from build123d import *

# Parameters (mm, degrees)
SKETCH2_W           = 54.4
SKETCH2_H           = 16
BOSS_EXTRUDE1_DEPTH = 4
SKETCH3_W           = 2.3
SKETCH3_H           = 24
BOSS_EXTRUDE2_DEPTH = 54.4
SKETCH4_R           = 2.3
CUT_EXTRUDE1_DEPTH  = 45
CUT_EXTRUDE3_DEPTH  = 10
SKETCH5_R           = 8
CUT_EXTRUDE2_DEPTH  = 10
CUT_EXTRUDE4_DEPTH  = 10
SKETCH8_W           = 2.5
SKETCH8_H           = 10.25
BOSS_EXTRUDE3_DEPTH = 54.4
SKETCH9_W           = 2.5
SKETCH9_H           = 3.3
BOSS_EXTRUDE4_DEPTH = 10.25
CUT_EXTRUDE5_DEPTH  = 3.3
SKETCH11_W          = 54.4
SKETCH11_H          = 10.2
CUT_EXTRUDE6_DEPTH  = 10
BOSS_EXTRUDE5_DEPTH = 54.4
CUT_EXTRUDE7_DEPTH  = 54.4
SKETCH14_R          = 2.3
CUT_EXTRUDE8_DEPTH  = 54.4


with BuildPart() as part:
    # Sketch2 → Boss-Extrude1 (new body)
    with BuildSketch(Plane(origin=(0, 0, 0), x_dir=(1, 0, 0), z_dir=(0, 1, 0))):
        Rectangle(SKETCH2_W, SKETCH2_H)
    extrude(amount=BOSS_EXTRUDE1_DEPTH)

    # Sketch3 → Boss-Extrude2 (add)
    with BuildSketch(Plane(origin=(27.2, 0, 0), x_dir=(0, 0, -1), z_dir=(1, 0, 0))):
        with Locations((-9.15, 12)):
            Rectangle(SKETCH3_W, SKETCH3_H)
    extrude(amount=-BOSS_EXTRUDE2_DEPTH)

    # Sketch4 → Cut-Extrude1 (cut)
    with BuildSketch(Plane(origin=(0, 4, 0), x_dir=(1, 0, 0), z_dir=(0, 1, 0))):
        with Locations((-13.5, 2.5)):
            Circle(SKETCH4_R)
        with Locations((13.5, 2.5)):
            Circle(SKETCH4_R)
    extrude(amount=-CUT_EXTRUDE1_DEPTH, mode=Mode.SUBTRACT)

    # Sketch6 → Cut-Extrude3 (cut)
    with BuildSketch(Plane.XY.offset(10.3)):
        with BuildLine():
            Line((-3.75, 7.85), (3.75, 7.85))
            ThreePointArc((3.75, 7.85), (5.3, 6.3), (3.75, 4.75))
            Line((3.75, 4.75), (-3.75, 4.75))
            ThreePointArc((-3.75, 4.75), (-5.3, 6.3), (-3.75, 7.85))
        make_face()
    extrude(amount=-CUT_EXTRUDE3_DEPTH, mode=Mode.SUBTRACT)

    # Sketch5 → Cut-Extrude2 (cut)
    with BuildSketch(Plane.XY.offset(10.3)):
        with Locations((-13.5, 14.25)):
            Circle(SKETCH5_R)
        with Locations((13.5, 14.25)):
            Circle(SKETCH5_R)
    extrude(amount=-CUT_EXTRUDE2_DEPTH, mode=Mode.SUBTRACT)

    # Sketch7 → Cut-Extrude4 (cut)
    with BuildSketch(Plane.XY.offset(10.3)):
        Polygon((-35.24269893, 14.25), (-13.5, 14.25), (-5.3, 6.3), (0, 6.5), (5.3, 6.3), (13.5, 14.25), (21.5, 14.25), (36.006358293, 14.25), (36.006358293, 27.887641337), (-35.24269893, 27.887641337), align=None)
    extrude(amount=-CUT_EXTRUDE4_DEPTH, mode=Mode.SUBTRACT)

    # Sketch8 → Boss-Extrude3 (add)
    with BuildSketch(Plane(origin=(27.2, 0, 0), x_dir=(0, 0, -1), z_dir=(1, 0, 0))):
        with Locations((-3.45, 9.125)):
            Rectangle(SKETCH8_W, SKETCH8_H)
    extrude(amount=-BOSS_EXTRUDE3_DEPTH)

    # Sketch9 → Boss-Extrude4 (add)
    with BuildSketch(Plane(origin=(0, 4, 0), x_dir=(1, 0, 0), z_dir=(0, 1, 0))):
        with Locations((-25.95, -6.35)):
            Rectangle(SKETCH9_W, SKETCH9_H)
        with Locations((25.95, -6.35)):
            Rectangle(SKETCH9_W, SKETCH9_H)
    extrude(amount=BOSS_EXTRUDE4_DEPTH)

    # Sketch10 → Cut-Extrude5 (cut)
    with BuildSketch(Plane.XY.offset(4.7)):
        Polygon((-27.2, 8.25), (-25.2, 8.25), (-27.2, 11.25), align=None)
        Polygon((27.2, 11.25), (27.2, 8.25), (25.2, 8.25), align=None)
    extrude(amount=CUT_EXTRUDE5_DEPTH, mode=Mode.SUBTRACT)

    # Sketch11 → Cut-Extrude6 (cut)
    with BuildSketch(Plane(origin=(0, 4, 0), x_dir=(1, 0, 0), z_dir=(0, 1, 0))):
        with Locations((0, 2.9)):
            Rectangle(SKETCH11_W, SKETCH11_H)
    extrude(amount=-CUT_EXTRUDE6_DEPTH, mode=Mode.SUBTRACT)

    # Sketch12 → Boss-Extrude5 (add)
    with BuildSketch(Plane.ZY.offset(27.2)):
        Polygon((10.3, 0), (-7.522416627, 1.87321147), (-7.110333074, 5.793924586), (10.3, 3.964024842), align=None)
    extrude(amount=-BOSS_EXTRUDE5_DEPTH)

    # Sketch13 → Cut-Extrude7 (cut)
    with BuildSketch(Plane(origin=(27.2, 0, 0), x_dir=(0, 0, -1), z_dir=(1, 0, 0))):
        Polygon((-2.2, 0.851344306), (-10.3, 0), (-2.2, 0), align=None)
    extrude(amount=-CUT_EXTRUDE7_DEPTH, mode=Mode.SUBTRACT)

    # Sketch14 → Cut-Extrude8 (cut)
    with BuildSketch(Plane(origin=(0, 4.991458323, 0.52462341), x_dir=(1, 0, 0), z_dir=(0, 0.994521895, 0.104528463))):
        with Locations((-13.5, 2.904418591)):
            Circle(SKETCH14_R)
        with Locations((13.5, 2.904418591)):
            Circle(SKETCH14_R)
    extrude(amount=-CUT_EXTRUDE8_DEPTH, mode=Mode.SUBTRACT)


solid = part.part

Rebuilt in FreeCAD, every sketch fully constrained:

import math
import FreeCAD as App
import Part
import Sketcher
from FreeCAD import Vector
Q = App.Units.Quantity

doc = App.newDocument("Part")
params = doc.addObject("Spreadsheet::Sheet", "Params")
for row, (alias, value) in enumerate([
    ("sketch1_height", "16 mm"),
    ("sketch1_width", "54.4 mm"),
    ("pad1_length", "4 mm"),
    ("sketch2_width", "24 mm"),
    ("sketch2_height", "2.3 mm"),
    ("pad2_length", "54.4 mm"),
    ("sketch3_diameter", "4.6 mm"),
    ("pocket1_length", "45 mm"),
    ("sketch4_radius", "1.55 mm"),
    ("sketch4_width", "7.5 mm"),
    ("pocket2_length", "10 mm"),
    ("sketch5_diameter", "16 mm"),
    ("pocket3_length", "10 mm"),
    ("pocket4_length", "10 mm"),
    ("sketch7_height", "2.5 mm"),
    ("sketch7_width", "10.25 mm"),
    ("pad3_length", "54.4 mm"),
    ("sketch8_width", "2.5 mm"),
    ("sketch8_height", "3.3 mm"),
    ("pad4_length", "10.25 mm"),
    ("sketch9_width", "2 mm"),
    ("sketch9_height", "3 mm"),
    ("pocket5_length", "3.3 mm"),
    ("sketch10_width", "54.4 mm"),
    ("sketch10_height", "10.2 mm"),
    ("pocket6_length", "10 mm"),
    ("pad5_length", "54.4 mm"),
    ("sketch12_height", "8.1 mm"),
    ("pocket7_length", "54.4 mm"),
    ("sketch13_diameter", "4.6 mm"),
    ("pocket8_length", "54.4 mm"),
], start=1):
    params.set(f"A{row}", alias)
    params.set(f"B{row}", "=" + value)
    params.setAlias(f"B{row}", alias)

body = doc.addObject("PartDesign::Body", "Body")

sketch1 = body.newObject("Sketcher::SketchObject", "Sketch")
sketch1.AttachmentSupport = (doc.getObject("XZ_Plane"), [""])
sketch1.MapMode = "FlatFace"
sketch1.addGeometry([
    Part.LineSegment(Vector(-27, -8, 0), Vector(-27, 8, 0)),
    Part.LineSegment(Vector(-27, 8, 0), Vector(27, 8, 0)),
    Part.LineSegment(Vector(27, 8, 0), Vector(27, -8, 0)),
    Part.LineSegment(Vector(27, -8, 0), Vector(-27, -8, 0)),
], False)
sketch1.addConstraint([
    Sketcher.Constraint("Coincident", 0, 2, 1, 1),
    Sketcher.Constraint("Coincident", 1, 2, 2, 1),
    Sketcher.Constraint("Coincident", 2, 2, 3, 1),
    Sketcher.Constraint("Coincident", 3, 2, 0, 1),
    Sketcher.Constraint("Vertical", 0),
    Sketcher.Constraint("Horizontal", 1),
    Sketcher.Constraint("Vertical", 2),
    Sketcher.Constraint("Horizontal", 3),
    Sketcher.Constraint("Symmetric", 0, 2, 2, 2, -1, 1),
    Sketcher.Constraint("DistanceY", 0, 1, 0, 2, 16.0),
    Sketcher.Constraint("DistanceX", 1, 1, 1, 2, 54.4),
])
sketch1.setExpression("Constraints[9]", "Params.sketch1_height")
sketch1.setExpression("Constraints[10]", "Params.sketch1_width")
pad1 = body.newObject("PartDesign::Pad", "Pad")
pad1.Profile = sketch1
pad1.setExpression("Length", "Params.pad1_length")
pad1.Reversed = True

sketch2 = body.newObject("Sketcher::SketchObject", "Sketch001")
sketch2.AttachmentSupport = (doc.getObject("YZ_Plane"), [""])
sketch2.MapMode = "FlatFace"
sketch2.AttachmentOffset = App.Placement(Vector(0, 0, 27.2), App.Rotation())
sketch2.addGeometry([
    Part.LineSegment(Vector(24, 10.3, 0), Vector(0, 10.3, 0)),
    Part.LineSegment(Vector(0, 10.3, 0), Vector(0, 8, 0)),
    Part.LineSegment(Vector(0, 8, 0), Vector(24, 8, 0)),
    Part.LineSegment(Vector(24, 8, 0), Vector(24, 10.3, 0)),
], False)
sketch2.addConstraint([
    Sketcher.Constraint("Coincident", 0, 2, 1, 1),
    Sketcher.Constraint("Coincident", 1, 2, 2, 1),
    Sketcher.Constraint("Coincident", 2, 2, 3, 1),
    Sketcher.Constraint("Coincident", 3, 2, 0, 1),
    Sketcher.Constraint("Horizontal", 0),
    Sketcher.Constraint("Vertical", 1),
    Sketcher.Constraint("Horizontal", 2),
    Sketcher.Constraint("Vertical", 3),
    Sketcher.Constraint("PointOnObject", 0, 2, -2),
    Sketcher.Constraint("DistanceX", 0, 2, 0, 1, 24.0),
    Sketcher.Constraint("DistanceY", 1, 2, 1, 1, 2.3),
    Sketcher.Constraint("DistanceY", -1, 1, 1, 2, 8.0),
])
sketch2.setExpression("Constraints[9]", "Params.sketch2_width")
sketch2.setExpression("Constraints[10]", "Params.sketch2_height")
pad2 = body.newObject("PartDesign::Pad", "Pad001")
pad2.Profile = sketch2
pad2.setExpression("Length", "Params.pad2_length")
pad2.Reversed = True

sketch3 = body.newObject("Sketcher::SketchObject", "Sketch002")
sketch3.AttachmentSupport = (doc.getObject("XZ_Plane"), [""])
sketch3.MapMode = "FlatFace"
sketch3.AttachmentOffset = App.Placement(Vector(0, 0, -4), App.Rotation())
sketch3.addGeometry([
    Part.Circle(Vector(-13.5, -2.5, 0), Vector(0, 0, 1), 2.3),
    Part.Circle(Vector(13.5, -2.5, 0), Vector(0, 0, 1), 2.3),
], False)
sketch3.addConstraint([
    Sketcher.Constraint("Equal", 0, 1),
    Sketcher.Constraint("Symmetric", 0, 3, 1, 3, -2),
    Sketcher.Constraint("Diameter", 0, 4.6),
    Sketcher.Constraint("DistanceX", 0, 3, 1, 3, 27.0),
    Sketcher.Constraint("DistanceY", 0, 3, -1, 1, 2.5),
])
sketch3.setExpression("Constraints[2]", "Params.sketch3_diameter")
pocket1 = body.newObject("PartDesign::Pocket", "Pocket")
pocket1.Profile = sketch3
pocket1.setExpression("Length", "Params.pocket1_length")
pocket1.Reversed = True

sketch4 = body.newObject("Sketcher::SketchObject", "Sketch003")
sketch4.AttachmentSupport = (doc.getObject("XY_Plane"), [""])
sketch4.MapMode = "FlatFace"
sketch4.AttachmentOffset = App.Placement(Vector(0, 0, 10.3), App.Rotation())
sketch4.addGeometry([
    Part.LineSegment(Vector(3.8, 7.8, 0), Vector(-3.8, 7.8, 0)),
    Part.ArcOfCircle(Part.Circle(Vector(-3.8, 6.3, 0), Vector(0, 0, 1), 1.6), math.radians(90), math.radians(270)),
    Part.LineSegment(Vector(-3.8, 4.8, 0), Vector(3.8, 4.8, 0)),
    Part.ArcOfCircle(Part.Circle(Vector(3.8, 6.3, 0), Vector(0, 0, 1), 1.6), math.radians(-90), math.radians(90)),
], False)
sketch4.addConstraint([
    Sketcher.Constraint("Tangent", 0, 2, 1, 1),
    Sketcher.Constraint("Tangent", 1, 2, 2, 1),
    Sketcher.Constraint("Tangent", 2, 2, 3, 1),
    Sketcher.Constraint("Tangent", 3, 2, 0, 1),
    Sketcher.Constraint("Horizontal", 0),
    Sketcher.Constraint("Horizontal", 2),
    Sketcher.Constraint("Radius", 1, 1.55),
    Sketcher.Constraint("DistanceX", 0, 2, 0, 1, 7.5),
    Sketcher.Constraint("DistanceY", -1, 1, 1, 3, 6.3),
    Sketcher.Constraint("DistanceX", 1, 3, -1, 1, 3.75),
])
sketch4.setExpression("Constraints[6]", "Params.sketch4_radius")
sketch4.setExpression("Constraints[7]", "Params.sketch4_width")
pocket2 = body.newObject("PartDesign::Pocket", "Pocket001")
pocket2.Profile = sketch4
pocket2.setExpression("Length", "Params.pocket2_length")

sketch5 = body.newObject("Sketcher::SketchObject", "Sketch004")
sketch5.AttachmentSupport = (doc.getObject("XY_Plane"), [""])
sketch5.MapMode = "FlatFace"
sketch5.AttachmentOffset = App.Placement(Vector(0, 0, 10.3), App.Rotation())
sketch5.addGeometry([
    Part.Circle(Vector(-14, 14, 0), Vector(0, 0, 1), 8),
    Part.Circle(Vector(14, 14, 0), Vector(0, 0, 1), 8),
], False)
sketch5.addConstraint([
    Sketcher.Constraint("Equal", 0, 1),
    Sketcher.Constraint("Symmetric", 0, 3, 1, 3, -2),
    Sketcher.Constraint("Diameter", 0, 16.0),
    Sketcher.Constraint("DistanceX", 0, 3, 1, 3, 27.0),
    Sketcher.Constraint("DistanceY", -1, 1, 0, 3, 14.25),
])
sketch5.setExpression("Constraints[2]", "Params.sketch5_diameter")
pocket3 = body.newObject("PartDesign::Pocket", "Pocket002")
pocket3.Profile = sketch5
pocket3.setExpression("Length", "Params.pocket3_length")

sketch6 = body.newObject("Sketcher::SketchObject", "Sketch005")
sketch6.AttachmentSupport = (doc.getObject("XY_Plane"), [""])
sketch6.MapMode = "FlatFace"
sketch6.AttachmentOffset = App.Placement(Vector(0, 0, 10.3), App.Rotation())
sketch6.addGeometry([
    Part.LineSegment(Vector(-35, 14, 0), Vector(-14, 14, 0)),
    Part.LineSegment(Vector(-14, 14, 0), Vector(-5, 6, 0)),
    Part.LineSegment(Vector(-5, 6, 0), Vector(0, 6, 0)),
    Part.LineSegment(Vector(0, 6, 0), Vector(5, 6, 0)),
    Part.LineSegment(Vector(5, 6, 0), Vector(14, 14, 0)),
    Part.LineSegment(Vector(14, 14, 0), Vector(36, 14, 0)),
    Part.LineSegment(Vector(36, 14, 0), Vector(36, 28, 0)),
    Part.LineSegment(Vector(36, 28, 0), Vector(-35, 28, 0)),
    Part.LineSegment(Vector(-35, 28, 0), Vector(-35, 14, 0)),
], False)
sketch6.addConstraint([
    Sketcher.Constraint("Coincident", 0, 2, 1, 1),
    Sketcher.Constraint("Coincident", 1, 2, 2, 1),
    Sketcher.Constraint("Coincident", 2, 2, 3, 1),
    Sketcher.Constraint("Coincident", 3, 2, 4, 1),
    Sketcher.Constraint("Coincident", 4, 2, 5, 1),
    Sketcher.Constraint("Coincident", 5, 2, 6, 1),
    Sketcher.Constraint("Coincident", 6, 2, 7, 1),
    Sketcher.Constraint("Coincident", 7, 2, 8, 1),
    Sketcher.Constraint("Coincident", 8, 2, 0, 1),
    Sketcher.Constraint("Horizontal", 0),
    Sketcher.Constraint("Horizontal", 5),
    Sketcher.Constraint("Vertical", 6),
    Sketcher.Constraint("Horizontal", 7),
    Sketcher.Constraint("Vertical", 8),
    Sketcher.Constraint("Symmetric", 1, 2, 3, 2, -2),
    Sketcher.Constraint("Symmetric", 0, 2, 4, 2, -2),
    Sketcher.Constraint("PointOnObject", 2, 2, -2),
    Sketcher.Constraint("DistanceX", 0, 2, 4, 2, 27.0),
    Sketcher.Constraint("DistanceX", 1, 2, -1, 1, 5.3),
    Sketcher.Constraint("DistanceY", -1, 1, 1, 2, 6.3),
    Sketcher.Constraint("DistanceY", -1, 1, 2, 2, 6.5),
    Sketcher.Constraint("DistanceY", -1, 1, 0, 2, 14.25),
    Sketcher.Constraint("DistanceX", 0, 1, 0, 2, 21.742699),
    Sketcher.Constraint("DistanceX", 5, 1, 5, 2, 22.506358),
    Sketcher.Constraint("DistanceY", 6, 1, 6, 2, 13.637641),
])
pocket4 = body.newObject("PartDesign::Pocket", "Pocket003")
pocket4.Profile = sketch6
pocket4.setExpression("Length", "Params.pocket4_length")

sketch7 = body.newObject("Sketcher::SketchObject", "Sketch006")
sketch7.AttachmentSupport = (doc.getObject("YZ_Plane"), [""])
sketch7.MapMode = "FlatFace"
sketch7.AttachmentOffset = App.Placement(Vector(0, 0, 27.2), App.Rotation())
sketch7.addGeometry([
    Part.LineSegment(Vector(14.2, 4.7, 0), Vector(4, 4.7, 0)),
    Part.LineSegment(Vector(4, 4.7, 0), Vector(4, 2.2, 0)),
    Part.LineSegment(Vector(4, 2.2, 0), Vector(14.2, 2.2, 0)),
    Part.LineSegment(Vector(14.2, 2.2, 0), Vector(14.2, 4.7, 0)),
], False)
sketch7.addConstraint([
    Sketcher.Constraint("Coincident", 0, 2, 1, 1),
    Sketcher.Constraint("Coincident", 1, 2, 2, 1),
    Sketcher.Constraint("Coincident", 2, 2, 3, 1),
    Sketcher.Constraint("Coincident", 3, 2, 0, 1),
    Sketcher.Constraint("Horizontal", 0),
    Sketcher.Constraint("Vertical", 1),
    Sketcher.Constraint("Horizontal", 2),
    Sketcher.Constraint("Vertical", 3),
    Sketcher.Constraint("DistanceY", 1, 2, 1, 1, 2.5),
    Sketcher.Constraint("DistanceX", -1, 1, 0, 2, 4.0),
    Sketcher.Constraint("DistanceX", 0, 2, 0, 1, 10.25),
    Sketcher.Constraint("DistanceY", -1, 1, 0, 2, 4.7),
])
sketch7.setExpression("Constraints[8]", "Params.sketch7_height")
sketch7.setExpression("Constraints[10]", "Params.sketch7_width")
pad3 = body.newObject("PartDesign::Pad", "Pad002")
pad3.Profile = sketch7
pad3.setExpression("Length", "Params.pad3_length")
pad3.Reversed = True

sketch8 = body.newObject("Sketcher::SketchObject", "Sketch007")
sketch8.AttachmentSupport = (doc.getObject("XZ_Plane"), [""])
sketch8.MapMode = "FlatFace"
sketch8.AttachmentOffset = App.Placement(Vector(0, 0, -4), App.Rotation())
sketch8.addGeometry([
    Part.LineSegment(Vector(-27.2, 4.7, 0), Vector(-27.2, 8, 0)),
    Part.LineSegment(Vector(-27.2, 8, 0), Vector(-24.7, 8, 0)),
    Part.LineSegment(Vector(-24.7, 8, 0), Vector(-24.7, 4.7, 0)),
    Part.LineSegment(Vector(-24.7, 4.7, 0), Vector(-27.2, 4.7, 0)),
    Part.LineSegment(Vector(24.7, 4.7, 0), Vector(24.7, 8, 0)),
    Part.LineSegment(Vector(24.7, 8, 0), Vector(27.2, 8, 0)),
    Part.LineSegment(Vector(27.2, 8, 0), Vector(27.2, 4.7, 0)),
    Part.LineSegment(Vector(27.2, 4.7, 0), Vector(24.7, 4.7, 0)),
], False)
sketch8.addConstraint([
    Sketcher.Constraint("Coincident", 0, 2, 1, 1),
    Sketcher.Constraint("Coincident", 1, 2, 2, 1),
    Sketcher.Constraint("Coincident", 2, 2, 3, 1),
    Sketcher.Constraint("Coincident", 3, 2, 0, 1),
    Sketcher.Constraint("Coincident", 4, 2, 5, 1),
    Sketcher.Constraint("Coincident", 5, 2, 6, 1),
    Sketcher.Constraint("Coincident", 6, 2, 7, 1),
    Sketcher.Constraint("Coincident", 7, 2, 4, 1),
    Sketcher.Constraint("Vertical", 0),
    Sketcher.Constraint("Horizontal", 1),
    Sketcher.Constraint("Vertical", 2),
    Sketcher.Constraint("Horizontal", 3),
    Sketcher.Constraint("Vertical", 4),
    Sketcher.Constraint("Horizontal", 5),
    Sketcher.Constraint("Vertical", 6),
    Sketcher.Constraint("Horizontal", 7),
    Sketcher.Constraint("Symmetric", 1, 2, 4, 2, -2),
    Sketcher.Constraint("Symmetric", 3, 2, 6, 2, -2),
    Sketcher.Constraint("DistanceX", 1, 1, 1, 2, 2.5),
    Sketcher.Constraint("DistanceY", 0, 1, 0, 2, 3.3),
    Sketcher.Constraint("DistanceY", -1, 1, 0, 2, 8.0),
    Sketcher.Constraint("DistanceX", 0, 2, -1, 1, 27.2),
])
sketch8.setExpression("Constraints[18]", "Params.sketch8_width")
sketch8.setExpression("Constraints[19]", "Params.sketch8_height")
pad4 = body.newObject("PartDesign::Pad", "Pad003")
pad4.Profile = sketch8
pad4.setExpression("Length", "Params.pad4_length")
pad4.Reversed = True

sketch9 = body.newObject("Sketcher::SketchObject", "Sketch008")
sketch9.AttachmentSupport = (doc.getObject("XY_Plane"), [""])
sketch9.MapMode = "FlatFace"
sketch9.AttachmentOffset = App.Placement(Vector(0, 0, 4.7), App.Rotation())
sketch9.addGeometry([
    Part.LineSegment(Vector(-27.2, 8.2, 0), Vector(-25.2, 8.2, 0)),
    Part.LineSegment(Vector(-25.2, 8.2, 0), Vector(-27.2, 11.2, 0)),
    Part.LineSegment(Vector(-27.2, 11.2, 0), Vector(-27.2, 8.2, 0)),
    Part.LineSegment(Vector(27.2, 8.2, 0), Vector(27.2, 11.2, 0)),
    Part.LineSegment(Vector(27.2, 11.2, 0), Vector(25.2, 8.2, 0)),
    Part.LineSegment(Vector(25.2, 8.2, 0), Vector(27.2, 8.2, 0)),
], False)
sketch9.addConstraint([
    Sketcher.Constraint("Coincident", 0, 2, 1, 1),
    Sketcher.Constraint("Coincident", 1, 2, 2, 1),
    Sketcher.Constraint("Coincident", 2, 2, 0, 1),
    Sketcher.Constraint("Coincident", 3, 2, 4, 1),
    Sketcher.Constraint("Coincident", 4, 2, 5, 1),
    Sketcher.Constraint("Coincident", 5, 2, 3, 1),
    Sketcher.Constraint("Horizontal", 0),
    Sketcher.Constraint("Vertical", 2),
    Sketcher.Constraint("Vertical", 3),
    Sketcher.Constraint("Horizontal", 5),
    Sketcher.Constraint("Symmetric", 1, 2, 3, 2, -2),
    Sketcher.Constraint("Symmetric", 0, 2, 4, 2, -2),
    Sketcher.Constraint("DistanceX", 0, 1, 0, 2, 2.0),
    Sketcher.Constraint("DistanceY", 2, 2, 2, 1, 3.0),
    Sketcher.Constraint("DistanceX", 0, 2, -1, 1, 25.2),
    Sketcher.Constraint("DistanceY", -1, 1, 0, 2, 8.25),
])
sketch9.setExpression("Constraints[12]", "Params.sketch9_width")
sketch9.setExpression("Constraints[13]", "Params.sketch9_height")
pocket5 = body.newObject("PartDesign::Pocket", "Pocket004")
pocket5.Profile = sketch9
pocket5.setExpression("Length", "Params.pocket5_length")
pocket5.Reversed = True

sketch10 = body.newObject("Sketcher::SketchObject", "Sketch009")
sketch10.AttachmentSupport = (doc.getObject("XZ_Plane"), [""])
sketch10.MapMode = "FlatFace"
sketch10.AttachmentOffset = App.Placement(Vector(0, 0, -4), App.Rotation())
sketch10.addGeometry([
    Part.LineSegment(Vector(-27, -8, 0), Vector(-27, 2, 0)),
    Part.LineSegment(Vector(-27, 2, 0), Vector(27, 2, 0)),
    Part.LineSegment(Vector(27, 2, 0), Vector(27, -8, 0)),
    Part.LineSegment(Vector(27, -8, 0), Vector(-27, -8, 0)),
], False)
sketch10.addConstraint([
    Sketcher.Constraint("Coincident", 0, 2, 1, 1),
    Sketcher.Constraint("Coincident", 1, 2, 2, 1),
    Sketcher.Constraint("Coincident", 2, 2, 3, 1),
    Sketcher.Constraint("Coincident", 3, 2, 0, 1),
    Sketcher.Constraint("Vertical", 0),
    Sketcher.Constraint("Horizontal", 1),
    Sketcher.Constraint("Vertical", 2),
    Sketcher.Constraint("Horizontal", 3),
    Sketcher.Constraint("DistanceX", 1, 1, 1, 2, 54.4),
    Sketcher.Constraint("DistanceY", 0, 1, 0, 2, 10.2),
    Sketcher.Constraint("DistanceY", 2, 2, -1, 1, 8.0),
    Sketcher.Constraint("DistanceX", 0, 2, -1, 1, 27.2),
])
sketch10.setExpression("Constraints[8]", "Params.sketch10_width")
sketch10.setExpression("Constraints[9]", "Params.sketch10_height")
pocket6 = body.newObject("PartDesign::Pocket", "Pocket005")
pocket6.Profile = sketch10
pocket6.setExpression("Length", "Params.pocket6_length")
pocket6.Reversed = True

sketch11 = body.newObject("Sketcher::SketchObject", "Sketch010")
sketch11.AttachmentSupport = (doc.getObject("YZ_Plane"), [""])
sketch11.MapMode = "FlatFace"
sketch11.AttachmentOffset = App.Placement(Vector(0, 0, -27.2), App.Rotation())
sketch11.addGeometry([
    Part.LineSegment(Vector(1.9, -7.5, 0), Vector(0, 10.3, 0)),
    Part.LineSegment(Vector(0, 10.3, 0), Vector(4, 10.3, 0)),
    Part.LineSegment(Vector(4, 10.3, 0), Vector(5.8, -7.1, 0)),
    Part.LineSegment(Vector(5.8, -7.1, 0), Vector(1.9, -7.5, 0)),
], False)
sketch11.addConstraint([
    Sketcher.Constraint("Coincident", 0, 2, 1, 1),
    Sketcher.Constraint("Coincident", 1, 2, 2, 1),
    Sketcher.Constraint("Coincident", 2, 2, 3, 1),
    Sketcher.Constraint("Coincident", 3, 2, 0, 1),
    Sketcher.Constraint("Horizontal", 1),
    Sketcher.Constraint("PointOnObject", 0, 2, -2),
    Sketcher.Constraint("Parallel", 0, 2),
    Sketcher.Constraint("Perpendicular", 2, 3),
    Sketcher.Constraint("Angle", 0, Q("96 deg")),
    Sketcher.Constraint("DistanceY", -1, 1, 0, 2, 10.3),
    Sketcher.Constraint("DistanceX", 1, 2, 2, 2, 1.8299),
    Sketcher.Constraint("Distance", 3, 3.942309),
])
pad5 = body.newObject("PartDesign::Pad", "Pad004")
pad5.Profile = sketch11
pad5.setExpression("Length", "Params.pad5_length")

sketch12 = body.newObject("Sketcher::SketchObject", "Sketch011")
sketch12.AttachmentSupport = (doc.getObject("YZ_Plane"), [""])
sketch12.MapMode = "FlatFace"
sketch12.AttachmentOffset = App.Placement(Vector(0, 0, 27.2), App.Rotation())
sketch12.addGeometry([
    Part.LineSegment(Vector(0.9, 2.2, 0), Vector(0, 10.3, 0)),
    Part.LineSegment(Vector(0, 10.3, 0), Vector(0, 2.2, 0)),
    Part.LineSegment(Vector(0, 2.2, 0), Vector(0.9, 2.2, 0)),
], False)
sketch12.addConstraint([
    Sketcher.Constraint("Coincident", 0, 2, 1, 1),
    Sketcher.Constraint("Coincident", 1, 2, 2, 1),
    Sketcher.Constraint("Coincident", 2, 2, 0, 1),
    Sketcher.Constraint("Vertical", 1),
    Sketcher.Constraint("Horizontal", 2),
    Sketcher.Constraint("PointOnObject", 0, 2, -2),
    Sketcher.Constraint("Angle", 0, Q("96 deg")),
    Sketcher.Constraint("DistanceY", 1, 2, 1, 1, 8.1),
    Sketcher.Constraint("DistanceY", -1, 1, 0, 2, 10.3),
])
sketch12.setExpression("Constraints[7]", "Params.sketch12_height")
pocket7 = body.newObject("PartDesign::Pocket", "Pocket006")
pocket7.Profile = sketch12
pocket7.setExpression("Length", "Params.pocket7_length")

sketch13 = body.newObject("Sketcher::SketchObject", "Sketch012")
sketch13.Placement = App.Placement(Vector(0, 4.991458, 0.524623), App.Rotation(Vector(1, 0, 0), Vector(0, 0.104528463, -0.994521895), Vector(0, 0.994521895, 0.104528463), "ZXY"))
sketch13.addGeometry([
    Part.Circle(Vector(-13.5, 2.9, 0), Vector(0, 0, 1), 2.3),
    Part.Circle(Vector(13.5, 2.9, 0), Vector(0, 0, 1), 2.3),
], False)
sketch13.addConstraint([
    Sketcher.Constraint("Equal", 0, 1),
    Sketcher.Constraint("Symmetric", 0, 3, 1, 3, -2),
    Sketcher.Constraint("Diameter", 0, 4.6),
    Sketcher.Constraint("DistanceX", 0, 3, 1, 3, 27.0),
    Sketcher.Constraint("DistanceY", -1, 1, 0, 3, 2.904419),
])
sketch13.setExpression("Constraints[2]", "Params.sketch13_diameter")
pocket8 = body.newObject("PartDesign::Pocket", "Pocket007")
pocket8.Profile = sketch13
pocket8.setExpression("Length", "Params.pocket8_length")

doc.recompute()
